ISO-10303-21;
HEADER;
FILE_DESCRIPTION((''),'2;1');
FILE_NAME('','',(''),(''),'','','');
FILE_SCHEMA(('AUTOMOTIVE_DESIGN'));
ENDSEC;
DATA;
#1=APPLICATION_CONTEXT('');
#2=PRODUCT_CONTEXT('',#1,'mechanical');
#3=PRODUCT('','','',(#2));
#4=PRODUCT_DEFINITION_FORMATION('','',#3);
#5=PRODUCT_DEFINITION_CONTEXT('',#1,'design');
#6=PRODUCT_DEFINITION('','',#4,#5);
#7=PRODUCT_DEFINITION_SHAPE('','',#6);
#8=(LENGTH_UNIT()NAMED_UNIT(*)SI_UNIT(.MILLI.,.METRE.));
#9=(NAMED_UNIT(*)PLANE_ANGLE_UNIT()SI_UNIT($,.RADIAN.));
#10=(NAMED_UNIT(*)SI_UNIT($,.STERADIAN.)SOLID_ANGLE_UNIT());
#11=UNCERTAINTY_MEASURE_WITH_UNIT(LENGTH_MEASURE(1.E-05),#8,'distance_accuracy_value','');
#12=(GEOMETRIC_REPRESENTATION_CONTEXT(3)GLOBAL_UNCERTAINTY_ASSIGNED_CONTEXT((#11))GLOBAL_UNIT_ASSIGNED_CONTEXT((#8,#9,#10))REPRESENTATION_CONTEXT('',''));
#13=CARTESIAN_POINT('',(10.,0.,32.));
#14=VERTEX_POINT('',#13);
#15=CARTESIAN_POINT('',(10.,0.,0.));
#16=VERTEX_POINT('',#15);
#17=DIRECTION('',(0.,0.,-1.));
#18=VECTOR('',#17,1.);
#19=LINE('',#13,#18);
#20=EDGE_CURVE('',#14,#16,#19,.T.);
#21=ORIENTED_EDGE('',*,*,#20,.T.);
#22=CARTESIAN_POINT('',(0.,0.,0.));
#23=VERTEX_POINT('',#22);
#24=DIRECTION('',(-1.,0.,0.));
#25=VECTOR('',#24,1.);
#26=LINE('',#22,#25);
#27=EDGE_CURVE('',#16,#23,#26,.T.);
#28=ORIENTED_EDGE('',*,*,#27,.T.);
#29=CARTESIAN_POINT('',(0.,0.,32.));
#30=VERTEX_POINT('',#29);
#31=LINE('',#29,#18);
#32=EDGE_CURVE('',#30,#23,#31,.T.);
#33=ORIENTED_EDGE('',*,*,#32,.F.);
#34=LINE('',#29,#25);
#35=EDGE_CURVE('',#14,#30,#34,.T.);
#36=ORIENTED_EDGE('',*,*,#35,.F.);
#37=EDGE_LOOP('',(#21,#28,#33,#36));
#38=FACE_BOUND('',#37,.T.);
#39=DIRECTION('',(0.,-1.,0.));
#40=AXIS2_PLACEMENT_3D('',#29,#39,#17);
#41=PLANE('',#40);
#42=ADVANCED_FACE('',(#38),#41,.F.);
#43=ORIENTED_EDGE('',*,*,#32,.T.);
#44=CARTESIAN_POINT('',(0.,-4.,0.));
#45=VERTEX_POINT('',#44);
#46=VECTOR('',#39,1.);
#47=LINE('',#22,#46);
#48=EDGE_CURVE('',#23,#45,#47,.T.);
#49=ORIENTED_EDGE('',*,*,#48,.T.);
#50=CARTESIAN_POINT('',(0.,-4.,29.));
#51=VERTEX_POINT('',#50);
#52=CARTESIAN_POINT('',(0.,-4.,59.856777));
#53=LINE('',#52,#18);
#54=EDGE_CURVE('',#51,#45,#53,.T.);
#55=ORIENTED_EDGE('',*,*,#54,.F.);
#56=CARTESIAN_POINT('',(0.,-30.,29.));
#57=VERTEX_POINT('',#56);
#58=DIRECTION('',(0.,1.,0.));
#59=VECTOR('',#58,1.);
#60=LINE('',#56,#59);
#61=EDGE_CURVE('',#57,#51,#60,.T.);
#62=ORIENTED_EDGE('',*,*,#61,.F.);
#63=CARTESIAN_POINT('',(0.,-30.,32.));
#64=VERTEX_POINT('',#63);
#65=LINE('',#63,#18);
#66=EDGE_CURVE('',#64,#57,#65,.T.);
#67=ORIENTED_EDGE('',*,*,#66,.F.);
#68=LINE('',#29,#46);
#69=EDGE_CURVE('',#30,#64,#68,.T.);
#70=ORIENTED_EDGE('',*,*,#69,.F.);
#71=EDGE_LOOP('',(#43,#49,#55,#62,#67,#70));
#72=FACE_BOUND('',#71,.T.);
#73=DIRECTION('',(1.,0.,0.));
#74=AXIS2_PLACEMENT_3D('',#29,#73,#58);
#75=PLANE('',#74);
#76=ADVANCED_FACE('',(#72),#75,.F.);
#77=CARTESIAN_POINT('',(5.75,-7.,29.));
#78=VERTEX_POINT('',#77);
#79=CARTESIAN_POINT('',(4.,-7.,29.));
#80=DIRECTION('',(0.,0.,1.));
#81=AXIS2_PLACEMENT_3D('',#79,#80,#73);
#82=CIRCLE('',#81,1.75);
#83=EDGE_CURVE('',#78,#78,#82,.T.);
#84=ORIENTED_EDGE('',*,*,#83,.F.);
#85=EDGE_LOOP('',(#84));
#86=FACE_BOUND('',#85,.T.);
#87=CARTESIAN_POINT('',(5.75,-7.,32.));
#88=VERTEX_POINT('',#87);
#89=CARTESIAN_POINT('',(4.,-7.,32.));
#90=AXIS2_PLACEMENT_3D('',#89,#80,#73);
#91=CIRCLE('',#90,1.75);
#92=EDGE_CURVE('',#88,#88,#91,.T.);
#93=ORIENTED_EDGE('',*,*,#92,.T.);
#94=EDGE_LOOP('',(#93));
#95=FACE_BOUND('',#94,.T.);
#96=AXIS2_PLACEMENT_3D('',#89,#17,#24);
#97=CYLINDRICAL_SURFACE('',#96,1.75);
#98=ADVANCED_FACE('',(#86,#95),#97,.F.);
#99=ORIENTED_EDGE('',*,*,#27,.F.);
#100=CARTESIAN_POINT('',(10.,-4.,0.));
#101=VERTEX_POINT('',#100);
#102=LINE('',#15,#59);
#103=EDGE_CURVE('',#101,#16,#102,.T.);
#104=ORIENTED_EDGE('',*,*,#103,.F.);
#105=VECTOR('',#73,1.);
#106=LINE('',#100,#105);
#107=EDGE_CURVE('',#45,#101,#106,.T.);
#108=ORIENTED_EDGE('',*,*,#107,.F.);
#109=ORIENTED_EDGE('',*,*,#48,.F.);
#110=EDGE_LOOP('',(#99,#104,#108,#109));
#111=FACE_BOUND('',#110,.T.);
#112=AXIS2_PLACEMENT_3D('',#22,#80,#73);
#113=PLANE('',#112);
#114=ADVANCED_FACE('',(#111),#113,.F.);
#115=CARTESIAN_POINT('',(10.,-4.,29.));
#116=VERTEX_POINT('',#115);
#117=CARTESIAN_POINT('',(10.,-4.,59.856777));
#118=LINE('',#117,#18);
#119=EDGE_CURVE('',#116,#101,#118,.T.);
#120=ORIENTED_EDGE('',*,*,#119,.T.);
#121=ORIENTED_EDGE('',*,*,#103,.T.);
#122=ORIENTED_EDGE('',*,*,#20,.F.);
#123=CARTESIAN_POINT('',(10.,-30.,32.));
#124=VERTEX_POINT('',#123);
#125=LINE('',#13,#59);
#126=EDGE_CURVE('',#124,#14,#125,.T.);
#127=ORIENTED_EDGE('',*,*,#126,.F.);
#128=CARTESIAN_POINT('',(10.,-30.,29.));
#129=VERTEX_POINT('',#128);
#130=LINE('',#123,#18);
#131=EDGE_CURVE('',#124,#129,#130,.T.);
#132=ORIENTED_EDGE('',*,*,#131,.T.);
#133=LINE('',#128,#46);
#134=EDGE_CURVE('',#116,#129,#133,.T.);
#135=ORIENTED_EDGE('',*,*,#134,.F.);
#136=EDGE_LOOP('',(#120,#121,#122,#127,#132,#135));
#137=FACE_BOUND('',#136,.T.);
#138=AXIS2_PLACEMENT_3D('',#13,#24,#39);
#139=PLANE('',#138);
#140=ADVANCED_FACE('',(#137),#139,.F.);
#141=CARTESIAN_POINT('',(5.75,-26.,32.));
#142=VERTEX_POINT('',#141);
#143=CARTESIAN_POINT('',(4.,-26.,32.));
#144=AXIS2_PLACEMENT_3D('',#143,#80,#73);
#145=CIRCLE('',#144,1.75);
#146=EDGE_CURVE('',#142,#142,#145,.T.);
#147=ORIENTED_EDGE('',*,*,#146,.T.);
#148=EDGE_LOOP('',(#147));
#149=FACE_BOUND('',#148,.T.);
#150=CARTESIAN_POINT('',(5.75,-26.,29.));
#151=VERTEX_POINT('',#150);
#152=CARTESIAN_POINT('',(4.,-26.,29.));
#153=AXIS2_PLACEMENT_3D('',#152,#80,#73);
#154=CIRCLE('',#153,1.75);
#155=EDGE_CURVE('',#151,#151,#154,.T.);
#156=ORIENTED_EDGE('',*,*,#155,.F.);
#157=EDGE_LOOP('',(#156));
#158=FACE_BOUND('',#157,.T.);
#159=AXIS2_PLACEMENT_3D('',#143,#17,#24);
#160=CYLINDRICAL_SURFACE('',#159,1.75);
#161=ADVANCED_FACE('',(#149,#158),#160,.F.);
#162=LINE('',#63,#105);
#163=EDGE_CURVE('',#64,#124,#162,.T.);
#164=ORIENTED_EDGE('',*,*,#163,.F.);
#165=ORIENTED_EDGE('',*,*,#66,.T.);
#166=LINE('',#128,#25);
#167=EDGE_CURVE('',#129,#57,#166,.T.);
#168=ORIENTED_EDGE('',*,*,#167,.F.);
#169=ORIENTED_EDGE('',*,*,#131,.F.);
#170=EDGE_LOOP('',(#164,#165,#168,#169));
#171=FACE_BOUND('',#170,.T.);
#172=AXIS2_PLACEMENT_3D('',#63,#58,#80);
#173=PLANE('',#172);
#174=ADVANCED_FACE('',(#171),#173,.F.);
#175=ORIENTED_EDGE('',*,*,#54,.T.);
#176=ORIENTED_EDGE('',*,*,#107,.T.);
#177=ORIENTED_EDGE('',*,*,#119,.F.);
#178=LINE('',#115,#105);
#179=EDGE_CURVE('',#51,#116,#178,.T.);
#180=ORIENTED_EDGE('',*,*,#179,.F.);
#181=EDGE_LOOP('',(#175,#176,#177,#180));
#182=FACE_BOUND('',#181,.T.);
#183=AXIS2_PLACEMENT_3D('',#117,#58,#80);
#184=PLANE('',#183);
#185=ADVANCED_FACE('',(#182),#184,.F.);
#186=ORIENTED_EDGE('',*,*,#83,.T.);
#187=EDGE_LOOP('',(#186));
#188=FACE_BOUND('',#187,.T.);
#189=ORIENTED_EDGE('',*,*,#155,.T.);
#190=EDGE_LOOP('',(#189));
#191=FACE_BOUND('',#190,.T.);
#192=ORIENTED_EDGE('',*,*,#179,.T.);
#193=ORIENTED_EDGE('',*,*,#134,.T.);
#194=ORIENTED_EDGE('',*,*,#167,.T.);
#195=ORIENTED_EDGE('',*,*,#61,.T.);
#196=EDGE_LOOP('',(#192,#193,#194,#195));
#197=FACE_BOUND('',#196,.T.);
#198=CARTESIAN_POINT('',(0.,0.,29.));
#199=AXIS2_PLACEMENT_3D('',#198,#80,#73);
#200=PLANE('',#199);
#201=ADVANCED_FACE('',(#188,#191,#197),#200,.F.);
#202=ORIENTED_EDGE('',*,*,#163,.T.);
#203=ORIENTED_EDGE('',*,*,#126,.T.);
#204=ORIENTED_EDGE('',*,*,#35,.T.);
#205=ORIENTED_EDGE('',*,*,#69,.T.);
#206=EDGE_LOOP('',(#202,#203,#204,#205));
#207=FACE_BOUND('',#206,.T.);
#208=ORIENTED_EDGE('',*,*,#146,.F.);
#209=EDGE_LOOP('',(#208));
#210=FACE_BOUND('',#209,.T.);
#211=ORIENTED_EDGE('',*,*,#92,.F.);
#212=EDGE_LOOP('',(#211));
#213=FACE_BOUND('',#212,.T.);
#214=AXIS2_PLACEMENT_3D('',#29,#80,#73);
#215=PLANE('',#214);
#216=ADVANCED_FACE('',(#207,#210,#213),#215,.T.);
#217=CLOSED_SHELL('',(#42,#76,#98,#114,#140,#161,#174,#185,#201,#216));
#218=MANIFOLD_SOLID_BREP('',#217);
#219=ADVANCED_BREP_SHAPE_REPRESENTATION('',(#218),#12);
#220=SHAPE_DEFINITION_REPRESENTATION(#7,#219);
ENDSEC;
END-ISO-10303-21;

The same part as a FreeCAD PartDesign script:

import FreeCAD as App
import Part
import Sketcher
from FreeCAD import Vector
Q = App.Units.Quantity

doc = App.newDocument("Part")
params = doc.addObject("Spreadsheet::Sheet", "Params")
for row, (alias, value) in enumerate([
    ("sketch1_diameter", "3.5 mm"),
    ("sketch1_width", "10 mm"),
    ("sketch1_height", "30 mm"),
    ("pad1_length", "32 mm"),
    ("sketch2_width", "10 mm"),
    ("sketch2_height", "26 mm"),
    ("pocket1_length", "29 mm"),
], start=1):
    params.set(f"A{row}", alias)
    params.set(f"B{row}", "=" + value)
    params.setAlias(f"B{row}", alias)

body = doc.addObject("PartDesign::Body", "Body")

sketch1 = body.newObject("Sketcher::SketchObject", "Sketch")
sketch1.AttachmentSupport = (doc.getObject("XY_Plane"), [""])
sketch1.MapMode = "FlatFace"
sketch1.addGeometry(Part.LineSegment(Vector(0, 0, 0), Vector(0, -30, 0)), False)
sketch1.addGeometry(Part.LineSegment(Vector(0, -30, 0), Vector(10, -30, 0)), False)
sketch1.addGeometry(Part.LineSegment(Vector(10, -30, 0), Vector(10, 0, 0)), False)
sketch1.addGeometry(Part.LineSegment(Vector(10, 0, 0), Vector(0, 0, 0)), False)
sketch1.addGeometry(Part.Circle(Vector(4, -26, 0), Vector(0, 0, 1), 1.75), False)
sketch1.addGeometry(Part.Circle(Vector(4, -7, 0), Vector(0, 0, 1), 1.75), False)
sketch1.addConstraint(Sketcher.Constraint("Coincident", 0, 2, 1, 1))
sketch1.addConstraint(Sketcher.Constraint("Coincident", 1, 2, 2, 1))
sketch1.addConstraint(Sketcher.Constraint("Coincident", 2, 2, 3, 1))
sketch1.addConstraint(Sketcher.Constraint("Coincident", 3, 2, 0, 1))
sketch1.addConstraint(Sketcher.Constraint("Vertical", 0))
sketch1.addConstraint(Sketcher.Constraint("Horizontal", 1))
sketch1.addConstraint(Sketcher.Constraint("Vertical", 2))
sketch1.addConstraint(Sketcher.Constraint("Horizontal", 3))
sketch1.addConstraint(Sketcher.Constraint("Coincident", 3, 2, -1, 1))
sketch1.addConstraint(Sketcher.Constraint("Equal", 4, 5))
sketch1.addConstraint(Sketcher.Constraint("Vertical", 4, 3, 5, 3))
sketch1.addConstraint(Sketcher.Constraint("Diameter", 4, Q("3.5 mm")))
sketch1.addConstraint(Sketcher.Constraint("DistanceX", 1, 1, 1, 2, Q("10 mm")))
sketch1.addConstraint(Sketcher.Constraint("DistanceY", 0, 2, 0, 1, Q("30 mm")))
sketch1.addConstraint(Sketcher.Constraint("DistanceX", -1, 1, 4, 3, Q("4 mm")))
sketch1.addConstraint(Sketcher.Constraint("DistanceY", 4, 3, -1, 1, Q("26 mm")))
sketch1.addConstraint(Sketcher.Constraint("DistanceY", 5, 3, -1, 1, Q("7 mm")))
sketch1.setExpression("Constraints[11]", "Params.sketch1_diameter")
sketch1.setExpression("Constraints[12]", "Params.sketch1_width")
sketch1.setExpression("Constraints[13]", "Params.sketch1_height")
pad1 = body.newObject("PartDesign::Pad", "Pad")
pad1.Profile = sketch1
pad1.setExpression("Length", "Params.pad1_length")

sketch2 = body.newObject("Sketcher::SketchObject", "Sketch001")
sketch2.AttachmentSupport = (doc.getObject("XY_Plane"), [""])
sketch2.MapMode = "FlatFace"
sketch2.addGeometry(Part.LineSegment(Vector(10, -4, 0), Vector(10, -30, 0)), False)
sketch2.addGeometry(Part.LineSegment(Vector(10, -30, 0), Vector(0, -30, 0)), False)
sketch2.addGeometry(Part.LineSegment(Vector(0, -30, 0), Vector(0, -4, 0)), False)
sketch2.addGeometry(Part.LineSegment(Vector(0, -4, 0), Vector(10, -4, 0)), False)
sketch2.addConstraint(Sketcher.Constraint("Coincident", 0, 2, 1, 1))
sketch2.addConstraint(Sketcher.Constraint("Coincident", 1, 2, 2, 1))
sketch2.addConstraint(Sketcher.Constraint("Coincident", 2, 2, 3, 1))
sketch2.addConstraint(Sketcher.Constraint("Coincident", 3, 2, 0, 1))
sketch2.addConstraint(Sketcher.Constraint("Vertical", 0))
sketch2.addConstraint(Sketcher.Constraint("Horizontal", 1))
sketch2.addConstraint(Sketcher.Constraint("Vertical", 2))
sketch2.addConstraint(Sketcher.Constraint("Horizontal", 3))
sketch2.addConstraint(Sketcher.Constraint("PointOnObject", 1, 2, -2))
sketch2.addConstraint(Sketcher.Constraint("DistanceX", 1, 2, 1, 1, Q("10 mm")))
sketch2.addConstraint(Sketcher.Constraint("DistanceY", 0, 2, 0, 1, Q("26 mm")))
sketch2.addConstraint(Sketcher.Constraint("DistanceY", 0, 2, -1, 1, Q("30 mm")))
sketch2.setExpression("Constraints[9]", "Params.sketch2_width")
sketch2.setExpression("Constraints[10]", "Params.sketch2_height")
pocket1 = body.newObject("PartDesign::Pocket", "Pocket")
pocket1.Profile = sketch2
pocket1.setExpression("Length", "Params.pocket1_length")
pocket1.Reversed = True

doc.recompute()
